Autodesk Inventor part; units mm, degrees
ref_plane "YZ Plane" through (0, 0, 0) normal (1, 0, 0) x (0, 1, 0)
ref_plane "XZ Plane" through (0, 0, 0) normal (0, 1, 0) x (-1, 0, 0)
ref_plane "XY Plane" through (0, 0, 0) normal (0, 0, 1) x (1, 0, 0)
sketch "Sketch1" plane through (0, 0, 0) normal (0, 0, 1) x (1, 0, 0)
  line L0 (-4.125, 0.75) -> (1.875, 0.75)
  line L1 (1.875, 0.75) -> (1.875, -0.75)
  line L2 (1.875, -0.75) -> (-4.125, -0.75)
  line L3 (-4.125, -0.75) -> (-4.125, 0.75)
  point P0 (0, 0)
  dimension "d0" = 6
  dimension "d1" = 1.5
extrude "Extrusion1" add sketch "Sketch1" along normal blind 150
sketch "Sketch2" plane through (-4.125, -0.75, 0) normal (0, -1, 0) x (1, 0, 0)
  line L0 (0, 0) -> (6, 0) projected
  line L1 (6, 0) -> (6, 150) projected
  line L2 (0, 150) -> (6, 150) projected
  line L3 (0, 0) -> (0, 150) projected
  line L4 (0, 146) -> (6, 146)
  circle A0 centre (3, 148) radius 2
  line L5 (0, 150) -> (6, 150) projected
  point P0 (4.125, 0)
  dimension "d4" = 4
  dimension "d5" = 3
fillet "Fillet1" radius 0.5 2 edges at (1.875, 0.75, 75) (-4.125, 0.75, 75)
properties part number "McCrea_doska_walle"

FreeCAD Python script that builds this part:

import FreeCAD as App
import Part
import Sketcher
from FreeCAD import Vector


def edges_at(feature, points):
    """Names of the edges that pass closest to the given points."""
    edges = feature.Shape.Edges
    near = lambda p: min(range(len(edges)), key=lambda i: edges[i].distToShape(Part.Vertex(*p))[0])
    return sorted({f"Edge{near(p) + 1}" for p in points})


def add_polygon(sketch, points):
    """Adds a closed chain of lines whose ends are joined by coincident constraints."""
    first, n = sketch.GeometryCount, len(points)
    for a, b in zip(points, points[1:] + points[:1]):
        sketch.addGeometry(Part.LineSegment(App.Vector(*a, 0), App.Vector(*b, 0)), False)
    for i in range(n):
        sketch.addConstraint(Sketcher.Constraint("Coincident", first + i, 2, first + (i + 1) % n, 1))

doc = App.newDocument("Part")
params = doc.addObject("Spreadsheet::Sheet", "Params")
for row, (alias, value) in enumerate([
    ("sketch1_width", "6 mm"),
    ("sketch1_height", "1.5 mm"),
    ("pad1_length", "150 mm"),
    ("fillet_radius", "0.5 mm"),
], start=1):
    params.set(f"A{row}", alias)
    params.set(f"B{row}", "=" + value)
    params.setAlias(f"B{row}", alias)

body = doc.addObject("PartDesign::Body", "Body")

sketch1 = doc.addObject("Sketcher::SketchObject", "Sketch")
body.addObject(sketch1)
sketch1.AttachmentSupport = (doc.XY_Plane, [""])
sketch1.MapMode = "FlatFace"
add_polygon(sketch1, [(1.875, 0.75), (-4.125, 0.75), (-4.125, -0.75), (1.875, -0.75)])
sketch1.addConstraint([
    Sketcher.Constraint("Horizontal", 0),
    Sketcher.Constraint("Vertical", 1),
    Sketcher.Constraint("Horizontal", 2),
    Sketcher.Constraint("Vertical", 3),
    Sketcher.Constraint("DistanceX", 0, 2, 0, 1, 6.0),
    Sketcher.Constraint("DistanceY", 1, 2, 1, 1, 1.5),
    Sketcher.Constraint("DistanceY", -1, 1, 0, 2, 0.75),
    Sketcher.Constraint("DistanceX", 0, 2, -1, 1, 4.125),
])
sketch1.setExpression("Constraints[8]", "Params.sketch1_width")
sketch1.setExpression("Constraints[9]", "Params.sketch1_height")
pad1 = doc.addObject("PartDesign::Pad", "Pad")
body.addObject(pad1)
pad1.Profile = sketch1
pad1.setExpression("Length", "Params.pad1_length")
doc.recompute()

fillet = doc.addObject("PartDesign::Fillet", "Fillet")
body.addObject(fillet)
fillet.Base = (pad1, edges_at(pad1, [(1.875, 0.75, 75), (-4.125, 0.75, 75)]))
fillet.setExpression("Radius", "Params.fillet_radius")

doc.recompute()
